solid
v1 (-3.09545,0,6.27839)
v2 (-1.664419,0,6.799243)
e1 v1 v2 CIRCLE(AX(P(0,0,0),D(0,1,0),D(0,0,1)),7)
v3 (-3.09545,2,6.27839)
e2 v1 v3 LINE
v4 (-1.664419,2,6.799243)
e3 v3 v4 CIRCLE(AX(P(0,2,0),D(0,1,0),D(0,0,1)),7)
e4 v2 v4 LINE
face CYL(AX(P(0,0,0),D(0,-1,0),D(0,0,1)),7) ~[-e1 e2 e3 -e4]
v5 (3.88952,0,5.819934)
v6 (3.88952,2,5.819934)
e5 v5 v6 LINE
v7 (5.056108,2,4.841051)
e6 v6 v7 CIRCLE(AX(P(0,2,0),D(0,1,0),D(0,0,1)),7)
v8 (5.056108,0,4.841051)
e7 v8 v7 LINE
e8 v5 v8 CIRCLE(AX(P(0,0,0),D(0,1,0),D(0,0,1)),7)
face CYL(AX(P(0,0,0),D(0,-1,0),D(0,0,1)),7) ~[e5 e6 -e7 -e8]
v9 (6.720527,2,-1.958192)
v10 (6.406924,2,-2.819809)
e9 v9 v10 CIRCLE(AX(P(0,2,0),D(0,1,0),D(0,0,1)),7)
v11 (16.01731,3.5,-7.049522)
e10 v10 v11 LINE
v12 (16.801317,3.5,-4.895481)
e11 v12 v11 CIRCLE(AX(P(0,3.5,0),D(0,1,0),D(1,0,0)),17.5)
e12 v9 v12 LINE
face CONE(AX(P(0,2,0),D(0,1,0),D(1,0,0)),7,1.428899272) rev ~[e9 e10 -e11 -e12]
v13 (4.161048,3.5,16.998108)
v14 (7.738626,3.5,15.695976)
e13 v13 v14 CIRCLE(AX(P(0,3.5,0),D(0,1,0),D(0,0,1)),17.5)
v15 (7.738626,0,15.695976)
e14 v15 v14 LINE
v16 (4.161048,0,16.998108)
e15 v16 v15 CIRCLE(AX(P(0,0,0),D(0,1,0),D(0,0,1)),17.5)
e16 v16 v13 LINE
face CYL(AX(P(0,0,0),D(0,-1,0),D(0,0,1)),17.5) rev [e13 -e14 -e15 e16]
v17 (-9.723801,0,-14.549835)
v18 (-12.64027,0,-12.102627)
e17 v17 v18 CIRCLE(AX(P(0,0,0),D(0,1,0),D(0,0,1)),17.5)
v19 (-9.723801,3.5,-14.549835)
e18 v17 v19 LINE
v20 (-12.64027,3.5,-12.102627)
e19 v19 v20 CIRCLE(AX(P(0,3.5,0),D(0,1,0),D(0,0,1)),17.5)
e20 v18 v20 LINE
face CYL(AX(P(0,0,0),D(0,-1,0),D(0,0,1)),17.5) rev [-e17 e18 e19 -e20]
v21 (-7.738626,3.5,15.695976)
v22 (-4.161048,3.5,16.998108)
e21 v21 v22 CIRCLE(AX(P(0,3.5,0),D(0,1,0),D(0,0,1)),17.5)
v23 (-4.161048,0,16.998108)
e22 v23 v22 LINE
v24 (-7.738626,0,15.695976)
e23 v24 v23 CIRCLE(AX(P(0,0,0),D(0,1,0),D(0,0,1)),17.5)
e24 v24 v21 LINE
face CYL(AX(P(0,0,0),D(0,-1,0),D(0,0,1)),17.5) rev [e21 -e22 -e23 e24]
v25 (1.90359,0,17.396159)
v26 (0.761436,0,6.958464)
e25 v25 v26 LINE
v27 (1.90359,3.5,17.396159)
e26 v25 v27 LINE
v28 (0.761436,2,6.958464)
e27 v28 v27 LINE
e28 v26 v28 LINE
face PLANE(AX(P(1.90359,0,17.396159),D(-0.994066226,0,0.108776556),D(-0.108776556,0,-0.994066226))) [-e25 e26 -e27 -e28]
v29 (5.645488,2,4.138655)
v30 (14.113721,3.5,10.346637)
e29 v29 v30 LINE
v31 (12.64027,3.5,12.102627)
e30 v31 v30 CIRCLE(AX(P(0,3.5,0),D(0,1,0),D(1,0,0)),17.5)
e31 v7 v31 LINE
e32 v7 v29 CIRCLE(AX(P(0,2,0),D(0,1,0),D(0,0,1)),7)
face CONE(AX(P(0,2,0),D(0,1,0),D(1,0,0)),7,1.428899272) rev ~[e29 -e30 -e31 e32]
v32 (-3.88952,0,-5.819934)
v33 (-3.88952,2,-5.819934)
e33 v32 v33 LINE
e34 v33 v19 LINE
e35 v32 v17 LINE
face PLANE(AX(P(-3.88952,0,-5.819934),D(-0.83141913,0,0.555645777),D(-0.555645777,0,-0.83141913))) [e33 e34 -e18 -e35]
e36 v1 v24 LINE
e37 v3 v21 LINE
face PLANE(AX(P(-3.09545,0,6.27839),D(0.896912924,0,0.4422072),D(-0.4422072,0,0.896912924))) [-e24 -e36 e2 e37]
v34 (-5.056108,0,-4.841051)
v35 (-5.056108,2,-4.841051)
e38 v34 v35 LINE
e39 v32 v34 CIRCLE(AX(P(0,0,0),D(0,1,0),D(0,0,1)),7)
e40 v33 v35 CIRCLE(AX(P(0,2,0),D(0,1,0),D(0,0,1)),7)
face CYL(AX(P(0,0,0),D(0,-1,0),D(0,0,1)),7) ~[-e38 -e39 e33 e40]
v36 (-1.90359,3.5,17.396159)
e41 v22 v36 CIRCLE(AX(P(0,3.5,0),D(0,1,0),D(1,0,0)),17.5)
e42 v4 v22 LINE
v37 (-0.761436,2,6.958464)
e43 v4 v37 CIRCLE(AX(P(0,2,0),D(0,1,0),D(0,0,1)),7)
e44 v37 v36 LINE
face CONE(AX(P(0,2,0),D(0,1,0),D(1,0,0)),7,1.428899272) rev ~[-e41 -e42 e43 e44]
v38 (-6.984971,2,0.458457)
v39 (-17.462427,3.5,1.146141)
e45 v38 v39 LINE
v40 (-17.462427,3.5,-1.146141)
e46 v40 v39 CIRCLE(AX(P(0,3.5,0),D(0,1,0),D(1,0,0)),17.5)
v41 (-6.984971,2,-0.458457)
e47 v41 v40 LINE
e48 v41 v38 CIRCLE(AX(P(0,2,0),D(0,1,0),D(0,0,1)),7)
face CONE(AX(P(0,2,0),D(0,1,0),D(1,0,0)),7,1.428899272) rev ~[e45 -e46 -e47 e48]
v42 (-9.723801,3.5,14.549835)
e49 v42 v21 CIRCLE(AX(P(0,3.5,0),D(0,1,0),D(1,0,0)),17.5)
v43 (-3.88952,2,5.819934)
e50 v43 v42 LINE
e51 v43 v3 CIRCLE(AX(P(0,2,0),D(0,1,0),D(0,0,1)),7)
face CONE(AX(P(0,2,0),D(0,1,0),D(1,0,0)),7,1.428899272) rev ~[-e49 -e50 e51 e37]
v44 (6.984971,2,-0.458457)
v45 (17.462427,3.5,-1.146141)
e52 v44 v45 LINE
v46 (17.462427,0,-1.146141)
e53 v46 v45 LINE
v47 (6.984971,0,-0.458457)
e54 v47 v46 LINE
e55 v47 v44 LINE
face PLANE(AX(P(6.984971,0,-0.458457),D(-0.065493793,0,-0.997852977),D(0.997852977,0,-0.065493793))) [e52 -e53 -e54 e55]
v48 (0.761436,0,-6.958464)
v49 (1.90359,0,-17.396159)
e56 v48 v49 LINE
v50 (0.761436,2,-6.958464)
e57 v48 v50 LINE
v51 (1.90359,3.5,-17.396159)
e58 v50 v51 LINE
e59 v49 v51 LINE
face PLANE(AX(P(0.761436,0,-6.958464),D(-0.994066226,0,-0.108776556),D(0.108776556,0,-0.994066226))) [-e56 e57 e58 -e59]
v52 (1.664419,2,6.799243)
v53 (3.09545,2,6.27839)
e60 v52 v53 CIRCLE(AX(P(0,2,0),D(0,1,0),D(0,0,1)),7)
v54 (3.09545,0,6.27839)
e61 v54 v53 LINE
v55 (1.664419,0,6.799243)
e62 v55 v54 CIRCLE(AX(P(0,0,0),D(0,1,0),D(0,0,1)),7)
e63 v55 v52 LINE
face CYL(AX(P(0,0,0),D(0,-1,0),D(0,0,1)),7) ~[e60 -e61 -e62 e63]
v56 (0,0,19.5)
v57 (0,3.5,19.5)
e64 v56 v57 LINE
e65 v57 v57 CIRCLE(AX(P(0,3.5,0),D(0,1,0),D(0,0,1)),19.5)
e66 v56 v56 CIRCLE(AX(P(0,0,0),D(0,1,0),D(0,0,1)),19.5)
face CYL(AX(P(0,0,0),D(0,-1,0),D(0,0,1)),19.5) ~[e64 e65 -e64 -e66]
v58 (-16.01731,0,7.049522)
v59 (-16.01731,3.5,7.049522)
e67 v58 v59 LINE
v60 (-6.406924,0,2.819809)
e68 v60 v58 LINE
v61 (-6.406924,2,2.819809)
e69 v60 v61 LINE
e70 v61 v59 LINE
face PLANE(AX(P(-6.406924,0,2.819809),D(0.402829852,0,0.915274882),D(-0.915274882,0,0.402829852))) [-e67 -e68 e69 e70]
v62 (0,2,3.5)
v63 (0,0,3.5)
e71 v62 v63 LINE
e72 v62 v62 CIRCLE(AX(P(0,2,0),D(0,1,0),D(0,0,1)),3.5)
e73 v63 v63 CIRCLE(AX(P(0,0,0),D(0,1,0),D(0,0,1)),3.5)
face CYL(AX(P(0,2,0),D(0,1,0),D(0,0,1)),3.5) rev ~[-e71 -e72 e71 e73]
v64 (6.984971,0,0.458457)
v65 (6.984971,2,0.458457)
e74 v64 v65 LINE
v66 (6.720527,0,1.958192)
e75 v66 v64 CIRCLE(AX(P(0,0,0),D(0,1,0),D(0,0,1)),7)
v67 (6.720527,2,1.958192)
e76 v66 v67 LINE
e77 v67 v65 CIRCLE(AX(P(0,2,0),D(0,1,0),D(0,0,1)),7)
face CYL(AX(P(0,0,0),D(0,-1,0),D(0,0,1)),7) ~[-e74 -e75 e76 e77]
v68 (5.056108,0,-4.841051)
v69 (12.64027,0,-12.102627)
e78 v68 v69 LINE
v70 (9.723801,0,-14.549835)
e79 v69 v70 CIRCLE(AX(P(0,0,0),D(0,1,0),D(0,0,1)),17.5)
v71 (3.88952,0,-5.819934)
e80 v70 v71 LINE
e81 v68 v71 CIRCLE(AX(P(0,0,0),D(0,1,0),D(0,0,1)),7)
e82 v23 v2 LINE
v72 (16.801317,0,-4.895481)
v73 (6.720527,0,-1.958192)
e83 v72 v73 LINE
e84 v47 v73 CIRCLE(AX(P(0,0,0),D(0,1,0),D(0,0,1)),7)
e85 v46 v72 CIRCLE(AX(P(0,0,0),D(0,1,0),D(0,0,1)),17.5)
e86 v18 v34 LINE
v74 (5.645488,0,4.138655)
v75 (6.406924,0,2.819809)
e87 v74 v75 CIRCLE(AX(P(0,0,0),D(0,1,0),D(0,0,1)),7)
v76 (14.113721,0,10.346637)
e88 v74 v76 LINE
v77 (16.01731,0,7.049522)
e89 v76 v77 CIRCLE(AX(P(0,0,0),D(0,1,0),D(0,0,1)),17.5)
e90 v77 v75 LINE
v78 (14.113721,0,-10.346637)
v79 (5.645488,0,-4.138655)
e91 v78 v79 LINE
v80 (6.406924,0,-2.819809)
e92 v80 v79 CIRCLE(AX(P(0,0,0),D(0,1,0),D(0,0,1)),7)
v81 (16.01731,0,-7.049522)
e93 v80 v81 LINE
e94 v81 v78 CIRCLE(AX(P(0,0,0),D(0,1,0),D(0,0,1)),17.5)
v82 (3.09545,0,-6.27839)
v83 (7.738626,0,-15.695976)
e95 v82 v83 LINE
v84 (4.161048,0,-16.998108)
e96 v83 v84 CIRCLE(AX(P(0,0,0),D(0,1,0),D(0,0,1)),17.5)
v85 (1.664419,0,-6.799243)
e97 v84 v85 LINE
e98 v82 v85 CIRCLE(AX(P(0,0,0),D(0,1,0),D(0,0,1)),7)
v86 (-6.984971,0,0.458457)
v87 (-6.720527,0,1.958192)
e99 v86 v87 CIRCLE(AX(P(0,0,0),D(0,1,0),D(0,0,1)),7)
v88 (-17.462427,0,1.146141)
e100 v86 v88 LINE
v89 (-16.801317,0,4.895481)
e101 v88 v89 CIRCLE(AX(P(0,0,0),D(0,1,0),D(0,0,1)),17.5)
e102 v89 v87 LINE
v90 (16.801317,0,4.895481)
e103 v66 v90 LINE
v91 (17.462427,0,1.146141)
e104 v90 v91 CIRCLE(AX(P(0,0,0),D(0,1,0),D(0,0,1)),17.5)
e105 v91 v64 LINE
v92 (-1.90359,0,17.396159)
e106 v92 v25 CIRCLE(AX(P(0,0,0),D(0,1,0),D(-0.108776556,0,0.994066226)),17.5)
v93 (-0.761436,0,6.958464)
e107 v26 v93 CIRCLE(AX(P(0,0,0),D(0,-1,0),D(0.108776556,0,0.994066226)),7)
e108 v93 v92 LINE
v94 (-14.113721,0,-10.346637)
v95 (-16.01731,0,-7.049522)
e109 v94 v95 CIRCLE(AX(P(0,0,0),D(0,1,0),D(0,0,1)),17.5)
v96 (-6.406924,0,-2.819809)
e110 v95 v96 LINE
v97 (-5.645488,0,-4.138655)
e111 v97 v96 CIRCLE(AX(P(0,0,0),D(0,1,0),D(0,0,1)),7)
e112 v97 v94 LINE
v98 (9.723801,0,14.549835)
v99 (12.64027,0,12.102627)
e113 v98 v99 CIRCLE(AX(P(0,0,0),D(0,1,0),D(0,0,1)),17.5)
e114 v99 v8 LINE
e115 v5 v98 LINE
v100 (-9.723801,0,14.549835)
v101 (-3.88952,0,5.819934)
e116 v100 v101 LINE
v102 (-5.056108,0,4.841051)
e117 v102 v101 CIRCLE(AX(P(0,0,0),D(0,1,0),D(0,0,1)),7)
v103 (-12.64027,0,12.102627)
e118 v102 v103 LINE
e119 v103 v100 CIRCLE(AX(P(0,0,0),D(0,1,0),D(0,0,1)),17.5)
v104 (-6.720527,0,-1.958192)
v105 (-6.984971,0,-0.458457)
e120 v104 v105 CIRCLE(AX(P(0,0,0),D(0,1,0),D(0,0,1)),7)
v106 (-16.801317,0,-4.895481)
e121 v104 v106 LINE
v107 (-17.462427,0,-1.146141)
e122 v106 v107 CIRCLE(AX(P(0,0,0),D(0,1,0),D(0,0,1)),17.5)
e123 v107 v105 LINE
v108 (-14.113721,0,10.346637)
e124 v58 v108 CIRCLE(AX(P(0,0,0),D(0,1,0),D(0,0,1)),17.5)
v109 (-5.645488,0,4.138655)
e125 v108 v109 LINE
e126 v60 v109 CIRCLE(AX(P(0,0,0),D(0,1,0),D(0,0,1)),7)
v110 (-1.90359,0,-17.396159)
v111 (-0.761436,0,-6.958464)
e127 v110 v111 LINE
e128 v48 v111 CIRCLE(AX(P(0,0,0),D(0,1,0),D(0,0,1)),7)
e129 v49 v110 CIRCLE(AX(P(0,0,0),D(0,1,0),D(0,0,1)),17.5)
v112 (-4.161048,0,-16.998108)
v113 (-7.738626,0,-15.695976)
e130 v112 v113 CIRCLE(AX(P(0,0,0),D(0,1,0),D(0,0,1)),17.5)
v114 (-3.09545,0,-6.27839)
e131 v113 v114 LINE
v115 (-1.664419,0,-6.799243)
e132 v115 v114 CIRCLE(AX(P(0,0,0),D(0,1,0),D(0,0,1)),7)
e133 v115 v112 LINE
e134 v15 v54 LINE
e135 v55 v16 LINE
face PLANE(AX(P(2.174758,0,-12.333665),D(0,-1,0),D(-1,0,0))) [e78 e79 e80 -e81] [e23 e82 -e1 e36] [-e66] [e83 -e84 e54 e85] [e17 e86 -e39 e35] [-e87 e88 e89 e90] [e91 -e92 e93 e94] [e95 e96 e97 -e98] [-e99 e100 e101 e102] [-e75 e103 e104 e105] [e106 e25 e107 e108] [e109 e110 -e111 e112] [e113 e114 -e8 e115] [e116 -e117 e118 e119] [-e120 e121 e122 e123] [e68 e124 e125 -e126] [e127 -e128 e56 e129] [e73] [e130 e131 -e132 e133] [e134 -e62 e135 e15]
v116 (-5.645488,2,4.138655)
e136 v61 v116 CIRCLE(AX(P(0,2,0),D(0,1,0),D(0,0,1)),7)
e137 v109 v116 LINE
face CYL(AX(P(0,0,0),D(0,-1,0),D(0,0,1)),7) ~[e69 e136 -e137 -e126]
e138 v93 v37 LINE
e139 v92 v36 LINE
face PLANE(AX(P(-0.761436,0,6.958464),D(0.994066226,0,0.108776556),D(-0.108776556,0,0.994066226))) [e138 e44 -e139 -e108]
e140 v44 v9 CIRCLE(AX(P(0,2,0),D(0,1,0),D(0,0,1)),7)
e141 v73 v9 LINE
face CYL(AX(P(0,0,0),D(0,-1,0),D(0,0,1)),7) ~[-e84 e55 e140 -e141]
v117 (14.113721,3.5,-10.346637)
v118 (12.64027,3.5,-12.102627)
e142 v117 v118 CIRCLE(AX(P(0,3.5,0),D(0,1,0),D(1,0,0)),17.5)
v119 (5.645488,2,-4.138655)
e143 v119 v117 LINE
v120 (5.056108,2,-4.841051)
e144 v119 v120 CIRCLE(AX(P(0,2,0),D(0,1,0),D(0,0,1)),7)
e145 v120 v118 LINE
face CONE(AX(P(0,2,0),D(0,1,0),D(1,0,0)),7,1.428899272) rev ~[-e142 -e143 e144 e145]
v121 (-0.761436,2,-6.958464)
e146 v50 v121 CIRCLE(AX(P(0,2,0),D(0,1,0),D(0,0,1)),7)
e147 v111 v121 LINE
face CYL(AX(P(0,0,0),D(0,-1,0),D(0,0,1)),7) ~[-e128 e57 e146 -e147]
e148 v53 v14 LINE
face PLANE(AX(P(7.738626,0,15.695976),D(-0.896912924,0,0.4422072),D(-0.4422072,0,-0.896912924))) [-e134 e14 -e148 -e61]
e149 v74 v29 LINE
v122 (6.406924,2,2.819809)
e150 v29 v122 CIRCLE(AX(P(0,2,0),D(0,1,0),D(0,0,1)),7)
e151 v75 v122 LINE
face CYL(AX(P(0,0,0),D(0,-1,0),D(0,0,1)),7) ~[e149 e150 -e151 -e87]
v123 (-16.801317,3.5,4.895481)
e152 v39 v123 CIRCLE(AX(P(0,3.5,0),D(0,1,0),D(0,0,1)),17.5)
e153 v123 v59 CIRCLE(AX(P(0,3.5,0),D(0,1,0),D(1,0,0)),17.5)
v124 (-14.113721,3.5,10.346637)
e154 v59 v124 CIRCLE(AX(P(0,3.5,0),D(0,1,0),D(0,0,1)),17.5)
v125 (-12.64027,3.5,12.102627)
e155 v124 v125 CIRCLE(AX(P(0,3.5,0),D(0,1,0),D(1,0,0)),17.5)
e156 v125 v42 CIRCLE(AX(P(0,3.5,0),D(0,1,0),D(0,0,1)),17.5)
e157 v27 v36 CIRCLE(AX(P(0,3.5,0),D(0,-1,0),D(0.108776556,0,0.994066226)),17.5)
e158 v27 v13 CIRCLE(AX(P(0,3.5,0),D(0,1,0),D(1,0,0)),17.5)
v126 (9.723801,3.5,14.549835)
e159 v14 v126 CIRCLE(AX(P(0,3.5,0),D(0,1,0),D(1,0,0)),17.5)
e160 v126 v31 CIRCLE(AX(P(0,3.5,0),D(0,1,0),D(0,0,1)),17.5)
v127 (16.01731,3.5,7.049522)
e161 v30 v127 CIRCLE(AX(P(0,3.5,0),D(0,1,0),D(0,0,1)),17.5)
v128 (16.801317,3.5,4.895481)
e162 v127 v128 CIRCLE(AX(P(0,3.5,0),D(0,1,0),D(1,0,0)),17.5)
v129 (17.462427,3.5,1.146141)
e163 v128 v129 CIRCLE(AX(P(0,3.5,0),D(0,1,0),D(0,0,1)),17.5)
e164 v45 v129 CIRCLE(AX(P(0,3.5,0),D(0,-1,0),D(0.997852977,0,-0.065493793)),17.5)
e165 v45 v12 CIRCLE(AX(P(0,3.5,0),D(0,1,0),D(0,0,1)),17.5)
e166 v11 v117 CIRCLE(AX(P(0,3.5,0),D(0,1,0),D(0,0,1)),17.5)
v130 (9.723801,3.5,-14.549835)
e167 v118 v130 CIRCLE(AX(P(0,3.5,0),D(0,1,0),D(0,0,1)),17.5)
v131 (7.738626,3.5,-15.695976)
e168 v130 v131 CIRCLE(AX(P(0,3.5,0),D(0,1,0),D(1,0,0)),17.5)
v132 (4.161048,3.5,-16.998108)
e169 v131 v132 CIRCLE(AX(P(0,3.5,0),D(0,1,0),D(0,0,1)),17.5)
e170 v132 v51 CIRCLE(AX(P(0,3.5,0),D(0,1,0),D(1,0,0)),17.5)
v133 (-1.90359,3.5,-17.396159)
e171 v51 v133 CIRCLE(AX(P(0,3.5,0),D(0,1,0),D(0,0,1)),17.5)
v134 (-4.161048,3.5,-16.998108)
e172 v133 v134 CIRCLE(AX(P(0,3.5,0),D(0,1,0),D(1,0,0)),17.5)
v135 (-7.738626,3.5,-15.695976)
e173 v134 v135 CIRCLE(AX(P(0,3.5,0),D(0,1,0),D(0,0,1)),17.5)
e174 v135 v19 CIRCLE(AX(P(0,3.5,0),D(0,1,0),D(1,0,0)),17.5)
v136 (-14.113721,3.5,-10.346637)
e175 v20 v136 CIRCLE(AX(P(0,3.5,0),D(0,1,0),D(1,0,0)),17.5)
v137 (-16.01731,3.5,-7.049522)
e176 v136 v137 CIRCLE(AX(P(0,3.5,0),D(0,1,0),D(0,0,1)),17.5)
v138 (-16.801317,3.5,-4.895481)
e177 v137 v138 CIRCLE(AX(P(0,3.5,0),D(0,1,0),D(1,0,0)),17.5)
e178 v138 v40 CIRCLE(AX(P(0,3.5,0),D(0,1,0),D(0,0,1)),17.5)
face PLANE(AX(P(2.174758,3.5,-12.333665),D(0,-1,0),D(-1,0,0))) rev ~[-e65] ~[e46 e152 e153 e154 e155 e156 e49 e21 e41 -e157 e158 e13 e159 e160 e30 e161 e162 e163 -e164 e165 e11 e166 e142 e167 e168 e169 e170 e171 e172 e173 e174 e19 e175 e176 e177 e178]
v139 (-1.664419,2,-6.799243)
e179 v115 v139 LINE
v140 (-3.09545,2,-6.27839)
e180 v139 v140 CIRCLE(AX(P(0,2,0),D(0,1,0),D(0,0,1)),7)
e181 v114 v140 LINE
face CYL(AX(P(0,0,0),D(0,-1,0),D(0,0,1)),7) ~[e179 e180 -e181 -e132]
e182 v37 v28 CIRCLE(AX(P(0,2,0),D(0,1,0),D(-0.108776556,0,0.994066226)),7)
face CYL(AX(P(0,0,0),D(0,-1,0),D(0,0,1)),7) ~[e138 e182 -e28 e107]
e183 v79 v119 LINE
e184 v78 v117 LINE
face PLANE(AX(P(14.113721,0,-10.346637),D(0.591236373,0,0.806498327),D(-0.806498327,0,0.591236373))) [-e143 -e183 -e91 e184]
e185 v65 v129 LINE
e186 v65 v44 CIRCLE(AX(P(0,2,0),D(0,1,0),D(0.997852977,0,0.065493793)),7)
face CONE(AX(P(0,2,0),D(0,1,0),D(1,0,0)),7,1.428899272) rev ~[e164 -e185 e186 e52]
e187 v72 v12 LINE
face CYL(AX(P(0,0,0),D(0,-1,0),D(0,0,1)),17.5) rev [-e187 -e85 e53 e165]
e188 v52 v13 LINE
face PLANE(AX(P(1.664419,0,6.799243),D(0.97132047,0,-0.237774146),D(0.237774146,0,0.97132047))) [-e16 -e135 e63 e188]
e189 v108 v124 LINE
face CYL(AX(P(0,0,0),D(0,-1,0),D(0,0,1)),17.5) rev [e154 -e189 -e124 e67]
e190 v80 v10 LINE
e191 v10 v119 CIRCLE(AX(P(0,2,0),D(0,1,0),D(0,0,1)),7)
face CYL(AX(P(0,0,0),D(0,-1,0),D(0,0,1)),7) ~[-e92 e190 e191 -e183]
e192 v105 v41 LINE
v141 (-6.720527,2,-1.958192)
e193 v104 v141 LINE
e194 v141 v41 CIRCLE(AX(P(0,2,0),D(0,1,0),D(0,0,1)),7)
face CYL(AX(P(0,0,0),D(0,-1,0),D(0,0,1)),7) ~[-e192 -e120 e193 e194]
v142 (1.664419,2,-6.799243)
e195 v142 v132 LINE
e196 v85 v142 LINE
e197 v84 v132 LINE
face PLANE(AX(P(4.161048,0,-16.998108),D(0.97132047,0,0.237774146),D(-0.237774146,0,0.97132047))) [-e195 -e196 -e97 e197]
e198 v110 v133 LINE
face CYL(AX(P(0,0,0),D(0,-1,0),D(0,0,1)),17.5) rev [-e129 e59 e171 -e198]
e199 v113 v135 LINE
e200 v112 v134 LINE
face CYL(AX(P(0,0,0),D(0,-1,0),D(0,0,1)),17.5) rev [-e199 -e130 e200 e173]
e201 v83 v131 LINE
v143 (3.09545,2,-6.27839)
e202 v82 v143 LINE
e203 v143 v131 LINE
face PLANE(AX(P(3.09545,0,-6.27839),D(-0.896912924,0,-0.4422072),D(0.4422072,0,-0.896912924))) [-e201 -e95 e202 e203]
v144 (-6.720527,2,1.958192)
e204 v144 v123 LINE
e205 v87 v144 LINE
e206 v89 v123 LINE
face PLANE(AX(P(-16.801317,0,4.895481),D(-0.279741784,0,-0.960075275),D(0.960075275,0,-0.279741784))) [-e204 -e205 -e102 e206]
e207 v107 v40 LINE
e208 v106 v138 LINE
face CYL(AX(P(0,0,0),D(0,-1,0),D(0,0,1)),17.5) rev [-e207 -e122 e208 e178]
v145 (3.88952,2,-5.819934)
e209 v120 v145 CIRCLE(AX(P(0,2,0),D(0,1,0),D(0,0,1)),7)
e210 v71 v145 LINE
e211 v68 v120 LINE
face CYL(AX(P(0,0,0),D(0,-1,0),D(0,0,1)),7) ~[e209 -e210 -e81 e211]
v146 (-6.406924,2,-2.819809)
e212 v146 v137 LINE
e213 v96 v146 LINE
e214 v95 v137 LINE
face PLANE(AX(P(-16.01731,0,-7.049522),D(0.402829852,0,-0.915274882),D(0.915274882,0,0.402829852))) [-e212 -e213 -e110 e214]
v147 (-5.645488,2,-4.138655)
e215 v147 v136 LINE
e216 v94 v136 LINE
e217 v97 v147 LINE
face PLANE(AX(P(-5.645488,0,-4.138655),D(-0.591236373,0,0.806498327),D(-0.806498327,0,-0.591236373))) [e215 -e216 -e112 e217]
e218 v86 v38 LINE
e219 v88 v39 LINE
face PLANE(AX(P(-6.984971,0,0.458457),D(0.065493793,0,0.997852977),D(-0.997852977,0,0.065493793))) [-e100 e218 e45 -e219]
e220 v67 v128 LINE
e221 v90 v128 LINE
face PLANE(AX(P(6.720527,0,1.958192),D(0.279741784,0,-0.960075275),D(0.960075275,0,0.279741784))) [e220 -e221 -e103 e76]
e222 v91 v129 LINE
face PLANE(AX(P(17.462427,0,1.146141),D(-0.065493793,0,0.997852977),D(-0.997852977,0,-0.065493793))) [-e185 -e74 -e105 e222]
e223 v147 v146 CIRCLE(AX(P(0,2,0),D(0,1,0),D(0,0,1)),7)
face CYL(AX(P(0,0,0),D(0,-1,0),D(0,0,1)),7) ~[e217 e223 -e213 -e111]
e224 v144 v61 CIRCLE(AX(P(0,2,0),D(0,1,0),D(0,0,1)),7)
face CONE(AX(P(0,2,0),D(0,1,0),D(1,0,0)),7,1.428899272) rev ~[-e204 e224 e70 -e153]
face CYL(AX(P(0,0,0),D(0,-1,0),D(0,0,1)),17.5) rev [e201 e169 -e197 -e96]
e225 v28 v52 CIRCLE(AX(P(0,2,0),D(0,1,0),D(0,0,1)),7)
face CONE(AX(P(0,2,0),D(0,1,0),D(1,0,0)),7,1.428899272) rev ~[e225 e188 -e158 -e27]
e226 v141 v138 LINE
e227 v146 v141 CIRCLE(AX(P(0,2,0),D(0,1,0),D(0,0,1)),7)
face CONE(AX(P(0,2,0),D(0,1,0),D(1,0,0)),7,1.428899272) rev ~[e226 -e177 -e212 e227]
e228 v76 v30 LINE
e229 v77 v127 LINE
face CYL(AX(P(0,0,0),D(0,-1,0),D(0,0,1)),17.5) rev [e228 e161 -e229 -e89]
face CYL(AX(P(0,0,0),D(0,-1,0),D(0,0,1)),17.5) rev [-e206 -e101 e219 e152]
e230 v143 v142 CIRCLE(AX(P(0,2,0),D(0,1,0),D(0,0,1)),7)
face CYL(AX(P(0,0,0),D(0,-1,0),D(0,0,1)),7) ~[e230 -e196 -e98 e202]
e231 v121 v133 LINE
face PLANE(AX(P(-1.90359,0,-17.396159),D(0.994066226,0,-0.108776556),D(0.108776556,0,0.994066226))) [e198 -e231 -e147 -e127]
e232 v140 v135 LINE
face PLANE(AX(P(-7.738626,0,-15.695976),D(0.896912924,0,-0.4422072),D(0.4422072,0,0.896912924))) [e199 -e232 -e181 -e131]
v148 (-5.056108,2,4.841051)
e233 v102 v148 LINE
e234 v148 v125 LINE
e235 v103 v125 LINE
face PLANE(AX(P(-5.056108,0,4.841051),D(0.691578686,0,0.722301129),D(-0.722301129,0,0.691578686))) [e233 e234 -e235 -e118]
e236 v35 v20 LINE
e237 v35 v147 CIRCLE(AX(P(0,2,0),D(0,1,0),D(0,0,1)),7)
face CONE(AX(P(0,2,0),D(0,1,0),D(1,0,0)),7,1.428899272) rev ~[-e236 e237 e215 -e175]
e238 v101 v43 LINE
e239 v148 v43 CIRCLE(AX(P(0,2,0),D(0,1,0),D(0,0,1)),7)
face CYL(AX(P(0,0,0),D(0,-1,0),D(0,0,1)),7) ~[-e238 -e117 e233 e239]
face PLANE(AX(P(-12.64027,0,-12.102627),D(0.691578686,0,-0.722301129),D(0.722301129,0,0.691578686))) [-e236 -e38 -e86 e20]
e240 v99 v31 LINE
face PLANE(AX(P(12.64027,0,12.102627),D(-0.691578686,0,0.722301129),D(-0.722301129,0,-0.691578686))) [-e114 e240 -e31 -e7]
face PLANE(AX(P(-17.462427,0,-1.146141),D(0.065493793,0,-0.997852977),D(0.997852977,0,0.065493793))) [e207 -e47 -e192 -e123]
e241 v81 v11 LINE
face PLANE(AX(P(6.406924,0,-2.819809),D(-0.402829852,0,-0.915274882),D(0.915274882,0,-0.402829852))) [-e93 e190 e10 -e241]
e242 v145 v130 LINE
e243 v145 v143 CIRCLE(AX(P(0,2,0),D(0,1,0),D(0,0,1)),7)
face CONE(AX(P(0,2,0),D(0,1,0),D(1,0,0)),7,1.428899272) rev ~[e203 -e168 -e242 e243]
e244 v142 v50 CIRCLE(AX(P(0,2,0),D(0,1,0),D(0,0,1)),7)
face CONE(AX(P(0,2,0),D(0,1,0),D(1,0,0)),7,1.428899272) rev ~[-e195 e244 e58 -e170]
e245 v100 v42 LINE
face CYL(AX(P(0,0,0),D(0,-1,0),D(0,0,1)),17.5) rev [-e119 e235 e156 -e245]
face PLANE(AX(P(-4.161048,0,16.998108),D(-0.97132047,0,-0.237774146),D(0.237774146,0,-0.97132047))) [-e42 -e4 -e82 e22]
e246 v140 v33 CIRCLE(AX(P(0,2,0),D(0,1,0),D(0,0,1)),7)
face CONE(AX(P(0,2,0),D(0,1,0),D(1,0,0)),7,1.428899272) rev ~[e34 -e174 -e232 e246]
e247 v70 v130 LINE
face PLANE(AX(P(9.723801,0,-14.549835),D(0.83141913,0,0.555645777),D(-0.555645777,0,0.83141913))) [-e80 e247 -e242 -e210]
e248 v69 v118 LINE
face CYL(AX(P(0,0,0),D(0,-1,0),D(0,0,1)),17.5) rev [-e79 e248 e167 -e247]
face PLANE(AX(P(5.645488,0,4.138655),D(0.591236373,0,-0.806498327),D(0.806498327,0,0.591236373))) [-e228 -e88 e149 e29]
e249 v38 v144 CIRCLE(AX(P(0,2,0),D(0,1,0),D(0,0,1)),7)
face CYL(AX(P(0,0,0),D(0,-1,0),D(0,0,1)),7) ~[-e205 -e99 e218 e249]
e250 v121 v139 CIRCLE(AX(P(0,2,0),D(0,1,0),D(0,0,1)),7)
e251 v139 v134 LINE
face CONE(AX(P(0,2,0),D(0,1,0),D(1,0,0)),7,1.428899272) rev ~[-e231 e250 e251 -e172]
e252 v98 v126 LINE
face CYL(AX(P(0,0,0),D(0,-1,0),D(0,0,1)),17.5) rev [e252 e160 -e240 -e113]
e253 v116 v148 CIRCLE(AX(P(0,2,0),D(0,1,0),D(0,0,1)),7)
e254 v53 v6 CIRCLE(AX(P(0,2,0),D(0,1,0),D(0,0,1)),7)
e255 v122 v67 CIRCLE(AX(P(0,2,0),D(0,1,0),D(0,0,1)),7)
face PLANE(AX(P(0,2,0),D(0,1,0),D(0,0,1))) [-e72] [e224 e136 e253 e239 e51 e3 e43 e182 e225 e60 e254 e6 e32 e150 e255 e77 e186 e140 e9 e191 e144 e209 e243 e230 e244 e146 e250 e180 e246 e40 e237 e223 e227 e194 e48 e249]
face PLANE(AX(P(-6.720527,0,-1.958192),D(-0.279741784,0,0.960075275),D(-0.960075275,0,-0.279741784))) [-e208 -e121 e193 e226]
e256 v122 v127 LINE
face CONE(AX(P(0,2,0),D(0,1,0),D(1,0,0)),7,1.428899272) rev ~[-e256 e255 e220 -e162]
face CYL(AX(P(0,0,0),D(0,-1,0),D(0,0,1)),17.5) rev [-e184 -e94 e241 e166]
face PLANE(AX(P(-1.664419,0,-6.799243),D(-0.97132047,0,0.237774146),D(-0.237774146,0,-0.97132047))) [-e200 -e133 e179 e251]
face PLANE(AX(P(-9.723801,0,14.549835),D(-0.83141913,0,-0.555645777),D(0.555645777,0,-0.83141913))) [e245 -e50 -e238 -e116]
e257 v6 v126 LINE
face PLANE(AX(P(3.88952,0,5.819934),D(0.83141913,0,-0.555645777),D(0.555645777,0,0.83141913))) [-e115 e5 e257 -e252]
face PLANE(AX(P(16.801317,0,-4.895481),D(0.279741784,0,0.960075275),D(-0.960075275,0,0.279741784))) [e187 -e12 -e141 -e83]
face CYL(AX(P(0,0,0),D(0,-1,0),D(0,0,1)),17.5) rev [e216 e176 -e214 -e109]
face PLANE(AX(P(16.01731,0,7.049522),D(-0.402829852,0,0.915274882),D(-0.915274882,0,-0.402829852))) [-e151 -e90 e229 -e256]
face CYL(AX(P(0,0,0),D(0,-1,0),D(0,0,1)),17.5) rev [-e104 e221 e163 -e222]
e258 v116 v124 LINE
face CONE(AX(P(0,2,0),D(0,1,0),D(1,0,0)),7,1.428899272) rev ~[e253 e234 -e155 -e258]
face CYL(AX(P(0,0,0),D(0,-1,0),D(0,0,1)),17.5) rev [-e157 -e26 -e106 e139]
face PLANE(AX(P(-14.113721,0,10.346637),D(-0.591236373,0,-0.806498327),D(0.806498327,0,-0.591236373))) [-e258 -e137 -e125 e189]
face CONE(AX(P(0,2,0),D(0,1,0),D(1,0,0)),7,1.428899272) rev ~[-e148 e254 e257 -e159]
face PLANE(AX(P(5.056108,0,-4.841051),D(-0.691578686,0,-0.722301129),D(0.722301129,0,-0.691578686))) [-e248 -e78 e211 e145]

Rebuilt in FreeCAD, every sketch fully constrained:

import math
import FreeCAD as App
import Part
import Sketcher
Q = App.Units.Quantity


def add_polygon(sketch, points):
    """Adds a closed chain of lines whose ends are joined by coincident constraints."""
    first, n = sketch.GeometryCount, len(points)
    for a, b in zip(points, points[1:] + points[:1]):
        sketch.addGeometry(Part.LineSegment(App.Vector(*a, 0), App.Vector(*b, 0)), False)
    for i in range(n):
        sketch.addConstraint(Sketcher.Constraint("Coincident", first + i, 2, first + (i + 1) % n, 1))

doc = App.newDocument("Part")
body = doc.addObject("PartDesign::Body", "Body")

# Sketch on XZ plane
sketch1 = body.newObject("Sketcher::SketchObject", "Sketch")
sketch1.AttachmentSupport = (doc.getObject("XZ_Plane"), [""])
sketch1.MapMode = "FlatFace"
sketch1.addGeometry([
    Part.Circle(App.Vector(0, 0, 0), App.Vector(0, 0, 1), 19.5),
    Part.Circle(App.Vector(0, 0, 0), App.Vector(0, 0, 1), 17.5),
], False)
sketch1.addConstraint([
    Sketcher.Constraint("Coincident", 0, 3, -1, 1),
    Sketcher.Constraint("Coincident", 1, 3, -1, 1),
    Sketcher.Constraint("Diameter", 0, Q("39 mm")),
    Sketcher.Constraint("Diameter", 1, Q("35 mm")),
])
pad1 = body.newObject("PartDesign::Pad", "Pad")
pad1.Profile = sketch1
pad1.Length = 3.5
pad1.Reversed = True
body2 = doc.addObject("PartDesign::Body", "Body001")

# Sketch on XZ plane
sketch2 = body2.newObject("Sketcher::SketchObject", "Sketch001")
sketch2.AttachmentSupport = (doc.getObject("XZ_Plane001"), [""])
sketch2.MapMode = "FlatFace"
sketch2.addGeometry(Part.Circle(App.Vector(0, 0, 0), App.Vector(0, 0, 1), 7), False)
sketch2.addConstraint([
    Sketcher.Constraint("Coincident", 0, 3, -1, 1),
    Sketcher.Constraint("Diameter", 0, Q("14 mm")),
])
pad2 = body2.newObject("PartDesign::Pad", "Pad001")
pad2.Profile = sketch2
pad2.Length = 2
pad2.Reversed = True
body.AllowCompound = True
doc.recompute()

boolean = body.newObject("PartDesign::Boolean", "Boolean")
boolean.Type = "Fuse"
boolean.addObjects([body2])

# Sketch on XZ plane
sketch3 = body.newObject("Sketcher::SketchObject", "Sketch002")
sketch3.AttachmentSupport = (doc.getObject("XZ_Plane"), [""])
sketch3.MapMode = "FlatFace"
sketch3.addGeometry([
    Part.LineSegment(App.Vector(1.90359, -17.396159, 0), App.Vector(0.761436, -6.958464, 0)),  # 0
    Part.ArcOfCircle(Part.Circle(App.Vector(0, 0, 0), App.Vector(0, 0, 1), 7), math.radians(-83.755206), math.radians(-76.244794)),  # 1
    Part.LineSegment(App.Vector(1.664419, -6.799243, 0), App.Vector(4.161048, -16.998108, 0)),  # 2
    Part.ArcOfCircle(Part.Circle(App.Vector(0, 0, 0), App.Vector(0, 0, 1), 17.5), math.radians(-83.755206), math.radians(-76.244794)),  # 3
    Part.LineSegment(App.Vector(7.738626, -15.695976, 0), App.Vector(3.09545, -6.27839, 0)),  # 4
    Part.ArcOfCircle(Part.Circle(App.Vector(0, 0, 0), App.Vector(0, 0, 1), 7), math.radians(-63.755206), math.radians(-56.244794)),  # 5
    Part.LineSegment(App.Vector(3.88952, -5.819934, 0), App.Vector(9.723801, -14.549835, 0)),  # 6
    Part.ArcOfCircle(Part.Circle(App.Vector(0, 0, 0), App.Vector(0, 0, 1), 17.5), math.radians(-63.755206), math.radians(-56.244794)),  # 7
    Part.LineSegment(App.Vector(12.64027, -12.102627, 0), App.Vector(5.056108, -4.841051, 0)),  # 8
    Part.ArcOfCircle(Part.Circle(App.Vector(0, 0, 0), App.Vector(0, 0, 1), 7), math.radians(-43.755206), math.radians(-36.244794)),  # 9
    Part.LineSegment(App.Vector(5.645488, -4.138655, 0), App.Vector(14.113721, -10.346637, 0)),  # 10
    Part.ArcOfCircle(Part.Circle(App.Vector(0, 0, 0), App.Vector(0, 0, 1), 17.5), math.radians(-43.755206), math.radians(-36.244794)),  # 11
    Part.LineSegment(App.Vector(16.01731, -7.049522, 0), App.Vector(6.406924, -2.819809, 0)),  # 12
    Part.ArcOfCircle(Part.Circle(App.Vector(0, 0, 0), App.Vector(0, 0, 1), 7), math.radians(-23.755206), math.radians(-16.244794)),  # 13
    Part.LineSegment(App.Vector(6.720527, -1.958192, 0), App.Vector(16.801317, -4.895481, 0)),  # 14
    Part.ArcOfCircle(Part.Circle(App.Vector(0, 0, 0), App.Vector(0, 0, 1), 17.5), math.radians(-23.755206), math.radians(-16.244794)),  # 15
    Part.LineSegment(App.Vector(17.462427, -1.146141, 0), App.Vector(6.984971, -0.458457, 0)),  # 16
    Part.ArcOfCircle(Part.Circle(App.Vector(0, 0, 0), App.Vector(0, 0, 1), 7), math.radians(-3.755206), math.radians(3.755206)),  # 17
    Part.LineSegment(App.Vector(6.984971, 0.458457, 0), App.Vector(17.462427, 1.146141, 0)),  # 18
    Part.ArcOfCircle(Part.Circle(App.Vector(0, 0, 0), App.Vector(0, 0, 1), 17.5), math.radians(-3.755206), math.radians(3.755206)),  # 19
    Part.LineSegment(App.Vector(16.801317, 4.895481, 0), App.Vector(6.720527, 1.958192, 0)),  # 20
    Part.ArcOfCircle(Part.Circle(App.Vector(0, 0, 0), App.Vector(0, 0, 1), 7), math.radians(16.244794), math.radians(23.755206)),  # 21
    Part.LineSegment(App.Vector(6.406924, 2.819809, 0), App.Vector(16.01731, 7.049522, 0)),  # 22
    Part.ArcOfCircle(Part.Circle(App.Vector(0, 0, 0), App.Vector(0, 0, 1), 17.5), math.radians(16.244794), math.radians(23.755206)),  # 23
    Part.LineSegment(App.Vector(14.113721, 10.346637, 0), App.Vector(5.645488, 4.138655, 0)),  # 24
    Part.ArcOfCircle(Part.Circle(App.Vector(0, 0, 0), App.Vector(0, 0, 1), 7), math.radians(36.244794), math.radians(43.755206)),  # 25
    Part.LineSegment(App.Vector(5.056108, 4.841051, 0), App.Vector(12.64027, 12.102627, 0)),  # 26
    Part.ArcOfCircle(Part.Circle(App.Vector(0, 0, 0), App.Vector(0, 0, 1), 17.5), math.radians(36.244794), math.radians(43.755206)),  # 27
    Part.LineSegment(App.Vector(9.723801, 14.549835, 0), App.Vector(3.88952, 5.819934, 0)),  # 28
    Part.ArcOfCircle(Part.Circle(App.Vector(0, 0, 0), App.Vector(0, 0, 1), 7), math.radians(56.244794), math.radians(63.755206)),  # 29
    Part.LineSegment(App.Vector(3.09545, 6.27839, 0), App.Vector(7.738626, 15.695976, 0)),  # 30
    Part.ArcOfCircle(Part.Circle(App.Vector(0, 0, 0), App.Vector(0, 0, 1), 17.5), math.radians(56.244794), math.radians(63.755206)),  # 31
    Part.LineSegment(App.Vector(4.161048, 16.998108, 0), App.Vector(1.664419, 6.799243, 0)),  # 32
    Part.ArcOfCircle(Part.Circle(App.Vector(0, 0, 0), App.Vector(0, 0, 1), 7), math.radians(76.244794), math.radians(83.755206)),  # 33
    Part.LineSegment(App.Vector(0.761436, 6.958464, 0), App.Vector(1.90359, 17.396159, 0)),  # 34
    Part.ArcOfCircle(Part.Circle(App.Vector(0, 0, 0), App.Vector(0, 0, 1), 17.5), math.radians(76.244794), math.radians(83.755206)),  # 35
    Part.LineSegment(App.Vector(-1.90359, 17.396159, 0), App.Vector(-0.761436, 6.958464, 0)),  # 36
    Part.ArcOfCircle(Part.Circle(App.Vector(0, 0, 0), App.Vector(0, 0, 1), 7), math.radians(96.244794), math.radians(103.755206)),  # 37
    Part.LineSegment(App.Vector(-1.664419, 6.799243, 0), App.Vector(-4.161048, 16.998108, 0)),  # 38
    Part.ArcOfCircle(Part.Circle(App.Vector(0, 0, 0), App.Vector(0, 0, 1), 17.5), math.radians(96.244794), math.radians(103.755206)),  # 39
    Part.LineSegment(App.Vector(-7.738626, 15.695976, 0), App.Vector(-3.09545, 6.27839, 0)),  # 40
    Part.ArcOfCircle(Part.Circle(App.Vector(0, 0, 0), App.Vector(0, 0, 1), 7), math.radians(116.244794), math.radians(123.755206)),  # 41
    Part.LineSegment(App.Vector(-3.88952, 5.819934, 0), App.Vector(-9.723801, 14.549835, 0)),  # 42
    Part.ArcOfCircle(Part.Circle(App.Vector(0, 0, 0), App.Vector(0, 0, 1), 17.5), math.radians(116.244794), math.radians(123.755206)),  # 43
    Part.LineSegment(App.Vector(-12.64027, 12.102627, 0), App.Vector(-5.056108, 4.841051, 0)),  # 44
    Part.ArcOfCircle(Part.Circle(App.Vector(0, 0, 0), App.Vector(0, 0, 1), 7), math.radians(136.244794), math.radians(143.755206)),  # 45
    Part.LineSegment(App.Vector(-5.645488, 4.138655, 0), App.Vector(-14.113721, 10.346637, 0)),  # 46
    Part.ArcOfCircle(Part.Circle(App.Vector(0, 0, 0), App.Vector(0, 0, 1), 17.5), math.radians(136.244794), math.radians(143.755206)),  # 47
    Part.LineSegment(App.Vector(-16.01731, 7.049522, 0), App.Vector(-6.406924, 2.819809, 0)),  # 48
    Part.ArcOfCircle(Part.Circle(App.Vector(0, 0, 0), App.Vector(0, 0, 1), 7), math.radians(156.244794), math.radians(163.755206)),  # 49
    Part.LineSegment(App.Vector(-6.720527, 1.958192, 0), App.Vector(-16.801317, 4.895481, 0)),  # 50
    Part.ArcOfCircle(Part.Circle(App.Vector(0, 0, 0), App.Vector(0, 0, 1), 17.5), math.radians(156.244794), math.radians(163.755206)),  # 51
    Part.LineSegment(App.Vector(-17.462427, 1.146141, 0), App.Vector(-6.984971, 0.458457, 0)),  # 52
    Part.ArcOfCircle(Part.Circle(App.Vector(0, 0, 0), App.Vector(0, 0, 1), 7), math.radians(176.244794), math.radians(183.755206)),  # 53
    Part.LineSegment(App.Vector(-6.984971, -0.458457, 0), App.Vector(-17.462427, -1.146141, 0)),  # 54
    Part.ArcOfCircle(Part.Circle(App.Vector(0, 0, 0), App.Vector(0, 0, 1), 17.5), math.radians(176.244794), math.radians(183.755206)),  # 55
    Part.LineSegment(App.Vector(-16.801317, -4.895481, 0), App.Vector(-6.720527, -1.958192, 0)),  # 56
    Part.ArcOfCircle(Part.Circle(App.Vector(0, 0, 0), App.Vector(0, 0, 1), 7), math.radians(-163.755206), math.radians(-156.244794)),  # 57
    Part.LineSegment(App.Vector(-6.406924, -2.819809, 0), App.Vector(-16.01731, -7.049522, 0)),  # 58
    Part.ArcOfCircle(Part.Circle(App.Vector(0, 0, 0), App.Vector(0, 0, 1), 17.5), math.radians(-163.755206), math.radians(-156.244794)),  # 59
    Part.LineSegment(App.Vector(-14.113721, -10.346637, 0), App.Vector(-5.645488, -4.138655, 0)),  # 60
    Part.ArcOfCircle(Part.Circle(App.Vector(0, 0, 0), App.Vector(0, 0, 1), 7), math.radians(-143.755206), math.radians(-136.244794)),  # 61
    Part.LineSegment(App.Vector(-5.056108, -4.841051, 0), App.Vector(-12.64027, -12.102627, 0)),  # 62
    Part.ArcOfCircle(Part.Circle(App.Vector(0, 0, 0), App.Vector(0, 0, 1), 17.5), math.radians(-143.755206), math.radians(-136.244794)),  # 63
    Part.LineSegment(App.Vector(-9.723801, -14.549835, 0), App.Vector(-3.88952, -5.819934, 0)),  # 64
    Part.ArcOfCircle(Part.Circle(App.Vector(0, 0, 0), App.Vector(0, 0, 1), 7), math.radians(-123.755206), math.radians(-116.244794)),  # 65
    Part.LineSegment(App.Vector(-3.09545, -6.27839, 0), App.Vector(-7.738626, -15.695976, 0)),  # 66
    Part.ArcOfCircle(Part.Circle(App.Vector(0, 0, 0), App.Vector(0, 0, 1), 17.5), math.radians(-123.755206), math.radians(-116.244794)),  # 67
    Part.LineSegment(App.Vector(-4.161048, -16.998108, 0), App.Vector(-1.664419, -6.799243, 0)),  # 68
    Part.ArcOfCircle(Part.Circle(App.Vector(0, 0, 0), App.Vector(0, 0, 1), 7), math.radians(-103.755206), math.radians(-96.244794)),  # 69
    Part.LineSegment(App.Vector(-0.761436, -6.958464, 0), App.Vector(-1.90359, -17.396159, 0)),  # 70
    Part.ArcOfCircle(Part.Circle(App.Vector(0, 0, 0), App.Vector(0, 0, 1), 17.5), math.radians(-103.755206), math.radians(-96.244794)),  # 71
], False)
sketch3.addConstraint([
    Sketcher.Constraint("Coincident", 0, 2, 1, 1),
    Sketcher.Constraint("Coincident", 1, 2, 2, 1),
    Sketcher.Constraint("Coincident", 2, 2, 3, 2),
    Sketcher.Constraint("Coincident", 3, 1, 0, 1),
    Sketcher.Constraint("Coincident", 4, 2, 5, 1),
    Sketcher.Constraint("Coincident", 5, 2, 6, 1),
    Sketcher.Constraint("Coincident", 6, 2, 7, 2),
    Sketcher.Constraint("Coincident", 7, 1, 4, 1),
    Sketcher.Constraint("Coincident", 8, 2, 9, 1),
    Sketcher.Constraint("Coincident", 9, 2, 10, 1),
    Sketcher.Constraint("Coincident", 10, 2, 11, 2),
    Sketcher.Constraint("Coincident", 11, 1, 8, 1),
    Sketcher.Constraint("Coincident", 12, 2, 13, 1),
    Sketcher.Constraint("Coincident", 13, 2, 14, 1),
    Sketcher.Constraint("Coincident", 14, 2, 15, 2),
    Sketcher.Constraint("Coincident", 15, 1, 12, 1),
    Sketcher.Constraint("Coincident", 16, 2, 17, 1),
    Sketcher.Constraint("Coincident", 17, 2, 18, 1),
    Sketcher.Constraint("Coincident", 18, 2, 19, 2),
    Sketcher.Constraint("Coincident", 19, 1, 16, 1),
    Sketcher.Constraint("Coincident", 20, 2, 21, 1),
    Sketcher.Constraint("Coincident", 21, 2, 22, 1),
    Sketcher.Constraint("Coincident", 22, 2, 23, 2),
    Sketcher.Constraint("Coincident", 23, 1, 20, 1),
    Sketcher.Constraint("Coincident", 24, 2, 25, 1),
    Sketcher.Constraint("Coincident", 25, 2, 26, 1),
    Sketcher.Constraint("Coincident", 26, 2, 27, 2),
    Sketcher.Constraint("Coincident", 27, 1, 24, 1),
    Sketcher.Constraint("Coincident", 28, 2, 29, 1),
    Sketcher.Constraint("Coincident", 29, 2, 30, 1),
    Sketcher.Constraint("Coincident", 30, 2, 31, 2),
    Sketcher.Constraint("Coincident", 31, 1, 28, 1),
    Sketcher.Constraint("Coincident", 32, 2, 33, 1),
    Sketcher.Constraint("Coincident", 33, 2, 34, 1),
    Sketcher.Constraint("Coincident", 34, 2, 35, 2),
    Sketcher.Constraint("Coincident", 35, 1, 32, 1),
    Sketcher.Constraint("Coincident", 36, 2, 37, 1),
    Sketcher.Constraint("Coincident", 37, 2, 38, 1),
    Sketcher.Constraint("Coincident", 38, 2, 39, 2),
    Sketcher.Constraint("Coincident", 39, 1, 36, 1),
    Sketcher.Constraint("Coincident", 40, 2, 41, 1),
    Sketcher.Constraint("Coincident", 41, 2, 42, 1),
    Sketcher.Constraint("Coincident", 42, 2, 43, 2),
    Sketcher.Constraint("Coincident", 43, 1, 40, 1),
    Sketcher.Constraint("Coincident", 44, 2, 45, 1),
    Sketcher.Constraint("Coincident", 45, 2, 46, 1),
    Sketcher.Constraint("Coincident", 46, 2, 47, 2),
    Sketcher.Constraint("Coincident", 47, 1, 44, 1),
    Sketcher.Constraint("Coincident", 48, 2, 49, 1),
    Sketcher.Constraint("Coincident", 49, 2, 50, 1),
    Sketcher.Constraint("Coincident", 50, 2, 51, 2),
    Sketcher.Constraint("Coincident", 51, 1, 48, 1),
    Sketcher.Constraint("Coincident", 52, 2, 53, 1),
    Sketcher.Constraint("Coincident", 53, 2, 54, 1),
    Sketcher.Constraint("Coincident", 54, 2, 55, 2),
    Sketcher.Constraint("Coincident", 55, 1, 52, 1),
    Sketcher.Constraint("Coincident", 56, 2, 57, 1),
    Sketcher.Constraint("Coincident", 57, 2, 58, 1),
    Sketcher.Constraint("Coincident", 58, 2, 59, 2),
    Sketcher.Constraint("Coincident", 59, 1, 56, 1),
    Sketcher.Constraint("Coincident", 60, 2, 61, 1),
    Sketcher.Constraint("Coincident", 61, 2, 62, 1),
    Sketcher.Constraint("Coincident", 62, 2, 63, 2),
    Sketcher.Constraint("Coincident", 63, 1, 60, 1),
    Sketcher.Constraint("Coincident", 64, 2, 65, 1),
    Sketcher.Constraint("Coincident", 65, 2, 66, 1),
    Sketcher.Constraint("Coincident", 66, 2, 67, 2),
    Sketcher.Constraint("Coincident", 67, 1, 64, 1),
    Sketcher.Constraint("Coincident", 68, 2, 69, 1),
    Sketcher.Constraint("Coincident", 69, 2, 70, 1),
    Sketcher.Constraint("Coincident", 70, 2, 71, 2),
    Sketcher.Constraint("Coincident", 71, 1, 68, 1),
    Sketcher.Constraint("Coincident", 1, 3, -1, 1),
    Sketcher.Constraint("Coincident", 3, 3, -1, 1),
    Sketcher.Constraint("Coincident", 5, 3, -1, 1),
    Sketcher.Constraint("Coincident", 7, 3, -1, 1),
    Sketcher.Constraint("Coincident", 9, 3, -1, 1),
    Sketcher.Constraint("Coincident", 11, 3, -1, 1),
    Sketcher.Constraint("Coincident", 13, 3, -1, 1),
    Sketcher.Constraint("Coincident", 15, 3, -1, 1),
    Sketcher.Constraint("Coincident", 17, 3, -1, 1),
    Sketcher.Constraint("Coincident", 19, 3, -1, 1),
    Sketcher.Constraint("Coincident", 21, 3, -1, 1),
    Sketcher.Constraint("Coincident", 23, 3, -1, 1),
    Sketcher.Constraint("Coincident", 25, 3, -1, 1),
    Sketcher.Constraint("Coincident", 27, 3, -1, 1),
    Sketcher.Constraint("Coincident", 29, 3, -1, 1),
    Sketcher.Constraint("Coincident", 31, 3, -1, 1),
    Sketcher.Constraint("Coincident", 33, 3, -1, 1),
    Sketcher.Constraint("Coincident", 35, 3, -1, 1),
    Sketcher.Constraint("Coincident", 37, 3, -1, 1),
    Sketcher.Constraint("Coincident", 39, 3, -1, 1),
    Sketcher.Constraint("Coincident", 41, 3, -1, 1),
    Sketcher.Constraint("Coincident", 43, 3, -1, 1),
    Sketcher.Constraint("Coincident", 45, 3, -1, 1),
    Sketcher.Constraint("Coincident", 47, 3, -1, 1),
    Sketcher.Constraint("Coincident", 49, 3, -1, 1),
    Sketcher.Constraint("Coincident", 51, 3, -1, 1),
    Sketcher.Constraint("Coincident", 53, 3, -1, 1),
    Sketcher.Constraint("Coincident", 55, 3, -1, 1),
    Sketcher.Constraint("Coincident", 57, 3, -1, 1),
    Sketcher.Constraint("Coincident", 59, 3, -1, 1),
    Sketcher.Constraint("Coincident", 61, 3, -1, 1),
    Sketcher.Constraint("Coincident", 63, 3, -1, 1),
    Sketcher.Constraint("Coincident", 65, 3, -1, 1),
    Sketcher.Constraint("Coincident", 67, 3, -1, 1),
    Sketcher.Constraint("Coincident", 69, 3, -1, 1),
    Sketcher.Constraint("Coincident", 71, 3, -1, 1),
    Sketcher.Constraint("Equal", 1, 5),
    Sketcher.Constraint("Equal", 3, 7),
    Sketcher.Constraint("Equal", 5, 9),
    Sketcher.Constraint("Equal", 7, 11),
    Sketcher.Constraint("Equal", 9, 13),
    Sketcher.Constraint("Equal", 11, 15),
    Sketcher.Constraint("Equal", 13, 17),
    Sketcher.Constraint("Equal", 15, 19),
    Sketcher.Constraint("Equal", 17, 21),
    Sketcher.Constraint("Equal", 19, 23),
    Sketcher.Constraint("Equal", 21, 25),
    Sketcher.Constraint("Equal", 23, 27),
    Sketcher.Constraint("Equal", 25, 29),
    Sketcher.Constraint("Equal", 27, 31),
    Sketcher.Constraint("Equal", 29, 33),
    Sketcher.Constraint("Equal", 31, 35),
    Sketcher.Constraint("Equal", 33, 37),
    Sketcher.Constraint("Equal", 35, 39),
    Sketcher.Constraint("Equal", 37, 41),
    Sketcher.Constraint("Equal", 39, 43),
    Sketcher.Constraint("Equal", 41, 45),
    Sketcher.Constraint("Equal", 43, 47),
    Sketcher.Constraint("Equal", 45, 49),
    Sketcher.Constraint("Equal", 47, 51),
    Sketcher.Constraint("Equal", 49, 53),
    Sketcher.Constraint("Equal", 51, 55),
    Sketcher.Constraint("Equal", 53, 57),
    Sketcher.Constraint("Equal", 55, 59),
    Sketcher.Constraint("Equal", 57, 61),
    Sketcher.Constraint("Equal", 59, 63),
    Sketcher.Constraint("Equal", 61, 65),
    Sketcher.Constraint("Equal", 63, 67),
    Sketcher.Constraint("Equal", 65, 69),
    Sketcher.Constraint("Equal", 67, 71),
    Sketcher.Constraint("Parallel", 0, 36),
    Sketcher.Constraint("Parallel", 2, 38),
    Sketcher.Constraint("Parallel", 4, 40),
    Sketcher.Constraint("Parallel", 6, 42),
    Sketcher.Constraint("Parallel", 8, 44),
    Sketcher.Constraint("Parallel", 10, 46),
    Sketcher.Constraint("Parallel", 12, 48),
    Sketcher.Constraint("Parallel", 14, 50),
    Sketcher.Constraint("Parallel", 16, 52),
    Sketcher.Constraint("Parallel", 18, 54),
    Sketcher.Constraint("Parallel", 20, 56),
    Sketcher.Constraint("Parallel", 22, 58),
    Sketcher.Constraint("Parallel", 24, 60),
    Sketcher.Constraint("Parallel", 26, 62),
    Sketcher.Constraint("Parallel", 28, 64),
    Sketcher.Constraint("Parallel", 30, 66),
    Sketcher.Constraint("Parallel", 32, 68),
    Sketcher.Constraint("Parallel", 34, 70),
    Sketcher.Constraint("Horizontal", 33, 2, 36, 2),
    Sketcher.Constraint("Horizontal", 32, 2, 37, 2),
    Sketcher.Constraint("Horizontal", 35, 1, 38, 2),
    Sketcher.Constraint("Horizontal", 34, 2, 39, 1),
    Sketcher.Constraint("Horizontal", 29, 2, 40, 2),
    Sketcher.Constraint("Horizontal", 28, 2, 41, 2),
    Sketcher.Constraint("Horizontal", 31, 1, 42, 2),
    Sketcher.Constraint("Horizontal", 30, 2, 43, 1),
    Sketcher.Constraint("Horizontal", 25, 2, 44, 2),
    Sketcher.Constraint("Horizontal", 24, 2, 45, 2),
    Sketcher.Constraint("Horizontal", 27, 1, 46, 2),
    Sketcher.Constraint("Horizontal", 26, 2, 47, 1),
    Sketcher.Constraint("Horizontal", 21, 2, 48, 2),
    Sketcher.Constraint("Horizontal", 20, 2, 49, 2),
    Sketcher.Constraint("Horizontal", 23, 1, 50, 2),
    Sketcher.Constraint("Horizontal", 22, 2, 51, 1),
    Sketcher.Constraint("Horizontal", 17, 2, 52, 2),
    Sketcher.Constraint("Horizontal", 16, 2, 53, 2),
    Sketcher.Constraint("Horizontal", 19, 1, 54, 2),
    Sketcher.Constraint("Horizontal", 13, 2, 56, 2),
    Sketcher.Constraint("Horizontal", 12, 2, 57, 2),
    Sketcher.Constraint("Horizontal", 9, 2, 60, 2),
    Sketcher.Constraint("Horizontal", 8, 2, 61, 2),
    Sketcher.Constraint("Horizontal", 5, 2, 64, 2),
    Sketcher.Constraint("Horizontal", 4, 2, 65, 2),
    Sketcher.Constraint("Horizontal", 1, 2, 68, 2),
    Sketcher.Constraint("Horizontal", 0, 2, 69, 2),
    Sketcher.Constraint("Vertical", 16, 2, 17, 2),
    Sketcher.Constraint("Vertical", 13, 2, 20, 2),
    Sketcher.Constraint("Vertical", 12, 2, 21, 2),
    Sketcher.Constraint("Vertical", 9, 2, 24, 2),
    Sketcher.Constraint("Vertical", 8, 2, 25, 2),
    Sketcher.Constraint("Vertical", 5, 2, 28, 2),
    Sketcher.Constraint("Vertical", 4, 2, 29, 2),
    Sketcher.Constraint("Vertical", 1, 2, 32, 2),
    Sketcher.Constraint("Vertical", 0, 2, 33, 2),
    Sketcher.Constraint("Radius", 1, Q("7 mm")),
    Sketcher.Constraint("Radius", 3, Q("17.5 mm")),
    Sketcher.Constraint("DistanceX", -1, 1, 6, 2, Q("9.723801 mm")),
    Sketcher.Constraint("DistanceX", -1, 1, 1, 2, Q("1.664419 mm")),
    Sketcher.Constraint("DistanceY", 2, 2, -1, 1, Q("16.998108 mm")),
    Sketcher.Constraint("DistanceX", -1, 1, 3, 1, Q("1.90359 mm")),
    Sketcher.Constraint("DistanceX", -1, 1, 4, 2, Q("3.09545 mm")),
    Sketcher.Constraint("DistanceX", -1, 1, 5, 2, Q("3.88952 mm")),
    Sketcher.Constraint("DistanceY", 8, 2, -1, 1, Q("4.841051 mm")),
    Sketcher.Constraint("DistanceX", -1, 1, 9, 2, Q("5.645488 mm")),
    Sketcher.Constraint("DistanceX", -1, 1, 10, 2, Q("14.113721 mm")),
    Sketcher.Constraint("DistanceX", -1, 1, 11, 1, Q("12.64027 mm")),
    Sketcher.Constraint("DistanceY", 12, 2, -1, 1, Q("2.819809 mm")),
    Sketcher.Constraint("DistanceY", 14, 2, -1, 1, Q("4.895481 mm")),
    Sketcher.Constraint("DistanceX", -1, 1, 15, 1, Q("16.01731 mm")),
    Sketcher.Constraint("DistanceX", -1, 1, 16, 2, Q("6.984971 mm")),
    Sketcher.Constraint("DistanceY", -1, 1, 18, 2, Q("1.146141 mm")),
    Sketcher.Constraint("DistanceX", -1, 1, 0, 2, Q("0.761436 mm")),
    Sketcher.Constraint("DistanceX", -1, 1, 7, 1, Q("7.738626 mm")),
    Sketcher.Constraint("DistanceX", -1, 1, 13, 2, Q("6.720527 mm")),
])
pad3 = body.newObject("PartDesign::Pad", "Pad002")
pad3.Profile = sketch3
pad3.Length = 3.5
pad3.Reversed = True

# Sketch on XY plane
sketch4 = body.newObject("Sketcher::SketchObject", "Sketch003")
sketch4.AttachmentSupport = (doc.getObject("XY_Plane"), [""])
sketch4.MapMode = "FlatFace"
add_polygon(sketch4, [(7, 2), (17.5, 3.5), (7, 3.5)])  # lines 0-2
sketch4.addConstraint([
    Sketcher.Constraint("Horizontal", 1),
    Sketcher.Constraint("Vertical", 2),
    Sketcher.Constraint("DistanceX", 1, 2, 1, 1, Q("10.5 mm")),
    Sketcher.Constraint("DistanceY", 2, 2, 2, 1, Q("1.5 mm")),
    Sketcher.Constraint("DistanceX", -1, 1, 1, 2, Q("7 mm")),
    Sketcher.Constraint("DistanceY", -1, 1, 2, 2, Q("2 mm")),
])
groove = body.newObject("PartDesign::Groove", "Groove")
groove.Profile = sketch4
groove.ReferenceAxis = (sketch4, ["V_Axis"])
groove.Angle = 360

# Sketch on XZ plane
sketch5 = body.newObject("Sketcher::SketchObject", "Sketch004")
sketch5.AttachmentSupport = (doc.getObject("XZ_Plane"), [""])
sketch5.MapMode = "FlatFace"
sketch5.AttachmentOffset = App.Placement(App.Vector(0, 0, -2), App.Rotation())
sketch5.addGeometry(Part.Circle(App.Vector(0, 0, 0), App.Vector(0, 0, 1), 3.5), False)
sketch5.addConstraint([
    Sketcher.Constraint("Coincident", 0, 3, -1, 1),
    Sketcher.Constraint("Diameter", 0, Q("7 mm")),
])
pocket1 = body.newObject("PartDesign::Pocket", "Pocket")
pocket1.Profile = sketch5
pocket1.Type = "ThroughAll"
pocket1.Reversed = True

doc.recompute()
